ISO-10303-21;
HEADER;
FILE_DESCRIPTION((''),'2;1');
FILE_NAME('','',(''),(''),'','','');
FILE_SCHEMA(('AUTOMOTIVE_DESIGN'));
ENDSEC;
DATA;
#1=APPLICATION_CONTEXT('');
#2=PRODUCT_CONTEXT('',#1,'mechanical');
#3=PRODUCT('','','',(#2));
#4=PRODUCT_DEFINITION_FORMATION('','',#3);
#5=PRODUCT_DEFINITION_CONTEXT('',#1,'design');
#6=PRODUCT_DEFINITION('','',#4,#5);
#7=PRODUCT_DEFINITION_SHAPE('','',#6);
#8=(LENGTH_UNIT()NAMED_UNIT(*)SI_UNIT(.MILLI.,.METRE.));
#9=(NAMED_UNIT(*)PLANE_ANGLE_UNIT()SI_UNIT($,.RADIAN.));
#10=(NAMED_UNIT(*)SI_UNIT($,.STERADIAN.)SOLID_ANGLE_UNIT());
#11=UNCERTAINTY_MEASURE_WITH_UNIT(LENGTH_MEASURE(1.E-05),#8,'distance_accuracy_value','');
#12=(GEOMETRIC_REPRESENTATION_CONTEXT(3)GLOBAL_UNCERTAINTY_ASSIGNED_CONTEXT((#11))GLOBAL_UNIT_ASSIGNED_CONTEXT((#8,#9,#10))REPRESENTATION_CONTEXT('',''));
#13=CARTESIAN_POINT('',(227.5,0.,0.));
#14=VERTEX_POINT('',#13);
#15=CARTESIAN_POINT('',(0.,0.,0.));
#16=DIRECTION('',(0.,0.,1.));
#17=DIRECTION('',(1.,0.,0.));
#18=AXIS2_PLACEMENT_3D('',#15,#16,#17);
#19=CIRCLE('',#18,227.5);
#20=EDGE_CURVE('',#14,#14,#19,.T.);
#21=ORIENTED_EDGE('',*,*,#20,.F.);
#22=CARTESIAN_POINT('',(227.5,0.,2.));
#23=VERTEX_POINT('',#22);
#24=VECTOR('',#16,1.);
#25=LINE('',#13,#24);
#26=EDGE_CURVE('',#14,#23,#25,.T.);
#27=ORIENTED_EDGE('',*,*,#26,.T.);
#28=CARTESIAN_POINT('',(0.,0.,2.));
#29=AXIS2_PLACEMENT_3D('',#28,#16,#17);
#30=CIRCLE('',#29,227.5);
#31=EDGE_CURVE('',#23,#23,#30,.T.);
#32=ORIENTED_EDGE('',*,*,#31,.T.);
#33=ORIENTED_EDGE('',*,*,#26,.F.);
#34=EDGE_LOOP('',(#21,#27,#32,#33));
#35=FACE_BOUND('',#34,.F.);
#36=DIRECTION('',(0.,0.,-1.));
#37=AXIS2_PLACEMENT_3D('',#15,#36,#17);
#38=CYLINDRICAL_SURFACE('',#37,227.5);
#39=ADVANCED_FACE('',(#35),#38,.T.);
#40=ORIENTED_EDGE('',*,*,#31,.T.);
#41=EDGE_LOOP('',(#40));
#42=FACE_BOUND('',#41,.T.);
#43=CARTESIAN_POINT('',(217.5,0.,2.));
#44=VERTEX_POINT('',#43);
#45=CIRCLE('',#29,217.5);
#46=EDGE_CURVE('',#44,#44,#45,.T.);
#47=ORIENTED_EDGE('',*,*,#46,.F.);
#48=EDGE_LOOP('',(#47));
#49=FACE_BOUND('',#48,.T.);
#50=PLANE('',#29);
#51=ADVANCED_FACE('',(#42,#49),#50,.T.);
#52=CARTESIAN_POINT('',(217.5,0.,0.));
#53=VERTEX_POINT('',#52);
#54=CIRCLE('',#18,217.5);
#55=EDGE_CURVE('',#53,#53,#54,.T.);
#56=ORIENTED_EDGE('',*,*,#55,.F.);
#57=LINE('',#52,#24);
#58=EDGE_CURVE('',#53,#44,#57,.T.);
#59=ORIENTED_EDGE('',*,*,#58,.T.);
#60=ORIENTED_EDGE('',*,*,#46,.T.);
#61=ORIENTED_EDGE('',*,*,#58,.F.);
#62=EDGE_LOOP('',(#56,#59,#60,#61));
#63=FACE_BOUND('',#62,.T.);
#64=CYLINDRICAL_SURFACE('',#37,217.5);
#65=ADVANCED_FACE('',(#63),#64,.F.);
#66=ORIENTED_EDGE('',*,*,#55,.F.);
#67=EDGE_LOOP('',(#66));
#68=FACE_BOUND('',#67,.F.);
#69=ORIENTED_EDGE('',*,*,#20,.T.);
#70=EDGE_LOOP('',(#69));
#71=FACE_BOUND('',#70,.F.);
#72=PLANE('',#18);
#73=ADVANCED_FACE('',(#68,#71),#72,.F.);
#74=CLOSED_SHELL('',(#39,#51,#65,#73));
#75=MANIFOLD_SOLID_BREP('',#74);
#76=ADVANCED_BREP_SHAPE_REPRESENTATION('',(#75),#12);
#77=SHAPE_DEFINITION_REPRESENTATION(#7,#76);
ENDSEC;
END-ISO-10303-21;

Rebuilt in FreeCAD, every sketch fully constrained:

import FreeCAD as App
import Part
import Sketcher

V = App.Vector

doc = App.newDocument("Part")
body = doc.addObject("PartDesign::Body", "Body")

# Sketch on XY plane
sketch1 = body.newObject("Sketcher::SketchObject", "Sketch")
sketch1.AttachmentSupport = (doc.getObject("XY_Plane"), [""])
sketch1.MapMode = "FlatFace"
sketch1.addGeometry(Part.Circle(V(0, 0, 0), V(0, 0, 1), 227.5), False)
sketch1.addGeometry(Part.Circle(V(0, 0, 0), V(0, 0, 1), 217.5), False)
sketch1.addConstraint(Sketcher.Constraint("Coincident", 0, 3, -1, 1))
sketch1.addConstraint(Sketcher.Constraint("Coincident", 1, 3, -1, 1))
sketch1.addConstraint(Sketcher.Constraint("Diameter", 0, 455.0))
sketch1.addConstraint(Sketcher.Constraint("Diameter", 1, 435.0))
pad1 = body.newObject("PartDesign::Pad", "Pad")
pad1.Profile = sketch1
pad1.Length = 2

doc.recompute()
